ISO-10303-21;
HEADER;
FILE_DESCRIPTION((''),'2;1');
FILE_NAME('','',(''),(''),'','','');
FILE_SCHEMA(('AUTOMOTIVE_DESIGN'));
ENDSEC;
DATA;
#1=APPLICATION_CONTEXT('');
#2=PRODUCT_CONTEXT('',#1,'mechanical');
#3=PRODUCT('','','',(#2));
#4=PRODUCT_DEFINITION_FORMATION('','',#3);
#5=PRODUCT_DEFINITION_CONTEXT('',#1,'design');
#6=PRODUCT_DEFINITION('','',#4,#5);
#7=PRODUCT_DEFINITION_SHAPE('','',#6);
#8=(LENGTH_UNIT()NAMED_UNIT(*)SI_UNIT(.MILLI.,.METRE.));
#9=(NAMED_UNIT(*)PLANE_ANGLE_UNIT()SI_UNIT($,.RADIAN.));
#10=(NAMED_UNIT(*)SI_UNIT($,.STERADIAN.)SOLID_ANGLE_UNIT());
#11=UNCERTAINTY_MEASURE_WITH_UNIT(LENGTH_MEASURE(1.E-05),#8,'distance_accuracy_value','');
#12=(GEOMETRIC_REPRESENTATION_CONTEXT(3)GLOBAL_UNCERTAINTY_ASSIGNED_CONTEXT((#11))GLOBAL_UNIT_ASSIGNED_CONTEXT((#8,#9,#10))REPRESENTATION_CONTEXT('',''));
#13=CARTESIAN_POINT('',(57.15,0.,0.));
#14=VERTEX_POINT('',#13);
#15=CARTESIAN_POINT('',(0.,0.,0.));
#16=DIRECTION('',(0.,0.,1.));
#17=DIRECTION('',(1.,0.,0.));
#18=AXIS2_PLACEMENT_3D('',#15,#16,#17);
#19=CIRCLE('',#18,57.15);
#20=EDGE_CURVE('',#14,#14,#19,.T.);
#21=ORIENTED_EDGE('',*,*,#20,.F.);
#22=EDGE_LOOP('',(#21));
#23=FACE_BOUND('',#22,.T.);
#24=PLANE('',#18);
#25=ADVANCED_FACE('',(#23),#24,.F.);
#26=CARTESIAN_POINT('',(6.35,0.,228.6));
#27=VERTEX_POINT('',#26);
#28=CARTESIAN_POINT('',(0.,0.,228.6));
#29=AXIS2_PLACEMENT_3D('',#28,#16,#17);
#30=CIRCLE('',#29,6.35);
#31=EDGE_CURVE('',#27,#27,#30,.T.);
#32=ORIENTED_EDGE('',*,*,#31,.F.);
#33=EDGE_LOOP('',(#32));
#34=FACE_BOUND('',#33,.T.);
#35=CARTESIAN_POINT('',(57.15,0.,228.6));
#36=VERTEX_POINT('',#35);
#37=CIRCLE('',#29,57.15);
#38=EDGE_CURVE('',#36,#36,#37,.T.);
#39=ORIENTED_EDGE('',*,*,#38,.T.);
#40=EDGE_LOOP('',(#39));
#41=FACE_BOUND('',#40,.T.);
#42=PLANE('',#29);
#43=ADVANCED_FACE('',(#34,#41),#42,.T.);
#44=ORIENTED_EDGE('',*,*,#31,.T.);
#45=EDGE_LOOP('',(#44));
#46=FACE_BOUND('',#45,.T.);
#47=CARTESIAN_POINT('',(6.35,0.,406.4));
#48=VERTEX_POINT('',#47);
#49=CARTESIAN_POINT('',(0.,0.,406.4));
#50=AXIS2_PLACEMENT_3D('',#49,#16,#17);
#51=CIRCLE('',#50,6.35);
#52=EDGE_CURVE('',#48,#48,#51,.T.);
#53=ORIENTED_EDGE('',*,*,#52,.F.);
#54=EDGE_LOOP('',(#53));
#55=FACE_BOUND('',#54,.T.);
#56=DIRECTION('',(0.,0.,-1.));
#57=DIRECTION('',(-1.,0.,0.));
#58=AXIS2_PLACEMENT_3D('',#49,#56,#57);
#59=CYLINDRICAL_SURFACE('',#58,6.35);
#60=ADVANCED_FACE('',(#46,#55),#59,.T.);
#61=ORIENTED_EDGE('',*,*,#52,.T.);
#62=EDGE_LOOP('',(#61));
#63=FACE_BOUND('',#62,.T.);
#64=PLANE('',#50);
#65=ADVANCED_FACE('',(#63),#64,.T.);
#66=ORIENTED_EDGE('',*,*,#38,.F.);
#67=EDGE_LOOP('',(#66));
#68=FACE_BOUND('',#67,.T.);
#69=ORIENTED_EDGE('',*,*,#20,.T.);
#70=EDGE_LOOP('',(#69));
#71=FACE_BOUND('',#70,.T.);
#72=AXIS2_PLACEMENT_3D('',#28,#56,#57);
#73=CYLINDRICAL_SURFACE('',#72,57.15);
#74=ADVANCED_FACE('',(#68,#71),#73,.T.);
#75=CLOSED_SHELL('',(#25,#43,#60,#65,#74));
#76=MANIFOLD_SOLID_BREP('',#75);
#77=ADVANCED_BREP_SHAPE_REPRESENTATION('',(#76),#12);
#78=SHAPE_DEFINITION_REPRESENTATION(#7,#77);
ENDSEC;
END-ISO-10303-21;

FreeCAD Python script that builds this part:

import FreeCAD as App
import Part
import Sketcher
from FreeCAD import Vector
Q = App.Units.Quantity

doc = App.newDocument("Part")
body = doc.addObject("PartDesign::Body", "Body")

# Sketch on XY plane
sketch1 = body.newObject("Sketcher::SketchObject", "Sketch")
sketch1.AttachmentSupport = (doc.getObject("XY_Plane"), [""])
sketch1.MapMode = "FlatFace"
sketch1.addGeometry(Part.Circle(Vector(0, 0, 0), Vector(0, 0, 1), 57), False)
sketch1.addConstraint(Sketcher.Constraint("Coincident", 0, 3, -1, 1))
sketch1.addConstraint(Sketcher.Constraint("Diameter", 0, Q("4.5 in")))
pad1 = body.newObject("PartDesign::Pad", "Pad")
pad1.Profile = sketch1
pad1.Length = Q("9 in")

# Sketch on XY plane
sketch2 = body.newObject("Sketcher::SketchObject", "Sketch001")
sketch2.AttachmentSupport = (doc.getObject("XY_Plane"), [""])
sketch2.MapMode = "FlatFace"
sketch2.AttachmentOffset = App.Placement(Vector(0, 0, 9 * 25.4), App.Rotation())
sketch2.addGeometry(Part.Circle(Vector(0, 0, 0), Vector(0, 0, 1), 6), False)
sketch2.addConstraint(Sketcher.Constraint("Coincident", 0, 3, -1, 1))
sketch2.addConstraint(Sketcher.Constraint("Diameter", 0, Q("0.5 in")))
pad2 = body.newObject("PartDesign::Pad", "Pad001")
pad2.Profile = sketch2
pad2.Length = Q("7 in")

doc.recompute()
